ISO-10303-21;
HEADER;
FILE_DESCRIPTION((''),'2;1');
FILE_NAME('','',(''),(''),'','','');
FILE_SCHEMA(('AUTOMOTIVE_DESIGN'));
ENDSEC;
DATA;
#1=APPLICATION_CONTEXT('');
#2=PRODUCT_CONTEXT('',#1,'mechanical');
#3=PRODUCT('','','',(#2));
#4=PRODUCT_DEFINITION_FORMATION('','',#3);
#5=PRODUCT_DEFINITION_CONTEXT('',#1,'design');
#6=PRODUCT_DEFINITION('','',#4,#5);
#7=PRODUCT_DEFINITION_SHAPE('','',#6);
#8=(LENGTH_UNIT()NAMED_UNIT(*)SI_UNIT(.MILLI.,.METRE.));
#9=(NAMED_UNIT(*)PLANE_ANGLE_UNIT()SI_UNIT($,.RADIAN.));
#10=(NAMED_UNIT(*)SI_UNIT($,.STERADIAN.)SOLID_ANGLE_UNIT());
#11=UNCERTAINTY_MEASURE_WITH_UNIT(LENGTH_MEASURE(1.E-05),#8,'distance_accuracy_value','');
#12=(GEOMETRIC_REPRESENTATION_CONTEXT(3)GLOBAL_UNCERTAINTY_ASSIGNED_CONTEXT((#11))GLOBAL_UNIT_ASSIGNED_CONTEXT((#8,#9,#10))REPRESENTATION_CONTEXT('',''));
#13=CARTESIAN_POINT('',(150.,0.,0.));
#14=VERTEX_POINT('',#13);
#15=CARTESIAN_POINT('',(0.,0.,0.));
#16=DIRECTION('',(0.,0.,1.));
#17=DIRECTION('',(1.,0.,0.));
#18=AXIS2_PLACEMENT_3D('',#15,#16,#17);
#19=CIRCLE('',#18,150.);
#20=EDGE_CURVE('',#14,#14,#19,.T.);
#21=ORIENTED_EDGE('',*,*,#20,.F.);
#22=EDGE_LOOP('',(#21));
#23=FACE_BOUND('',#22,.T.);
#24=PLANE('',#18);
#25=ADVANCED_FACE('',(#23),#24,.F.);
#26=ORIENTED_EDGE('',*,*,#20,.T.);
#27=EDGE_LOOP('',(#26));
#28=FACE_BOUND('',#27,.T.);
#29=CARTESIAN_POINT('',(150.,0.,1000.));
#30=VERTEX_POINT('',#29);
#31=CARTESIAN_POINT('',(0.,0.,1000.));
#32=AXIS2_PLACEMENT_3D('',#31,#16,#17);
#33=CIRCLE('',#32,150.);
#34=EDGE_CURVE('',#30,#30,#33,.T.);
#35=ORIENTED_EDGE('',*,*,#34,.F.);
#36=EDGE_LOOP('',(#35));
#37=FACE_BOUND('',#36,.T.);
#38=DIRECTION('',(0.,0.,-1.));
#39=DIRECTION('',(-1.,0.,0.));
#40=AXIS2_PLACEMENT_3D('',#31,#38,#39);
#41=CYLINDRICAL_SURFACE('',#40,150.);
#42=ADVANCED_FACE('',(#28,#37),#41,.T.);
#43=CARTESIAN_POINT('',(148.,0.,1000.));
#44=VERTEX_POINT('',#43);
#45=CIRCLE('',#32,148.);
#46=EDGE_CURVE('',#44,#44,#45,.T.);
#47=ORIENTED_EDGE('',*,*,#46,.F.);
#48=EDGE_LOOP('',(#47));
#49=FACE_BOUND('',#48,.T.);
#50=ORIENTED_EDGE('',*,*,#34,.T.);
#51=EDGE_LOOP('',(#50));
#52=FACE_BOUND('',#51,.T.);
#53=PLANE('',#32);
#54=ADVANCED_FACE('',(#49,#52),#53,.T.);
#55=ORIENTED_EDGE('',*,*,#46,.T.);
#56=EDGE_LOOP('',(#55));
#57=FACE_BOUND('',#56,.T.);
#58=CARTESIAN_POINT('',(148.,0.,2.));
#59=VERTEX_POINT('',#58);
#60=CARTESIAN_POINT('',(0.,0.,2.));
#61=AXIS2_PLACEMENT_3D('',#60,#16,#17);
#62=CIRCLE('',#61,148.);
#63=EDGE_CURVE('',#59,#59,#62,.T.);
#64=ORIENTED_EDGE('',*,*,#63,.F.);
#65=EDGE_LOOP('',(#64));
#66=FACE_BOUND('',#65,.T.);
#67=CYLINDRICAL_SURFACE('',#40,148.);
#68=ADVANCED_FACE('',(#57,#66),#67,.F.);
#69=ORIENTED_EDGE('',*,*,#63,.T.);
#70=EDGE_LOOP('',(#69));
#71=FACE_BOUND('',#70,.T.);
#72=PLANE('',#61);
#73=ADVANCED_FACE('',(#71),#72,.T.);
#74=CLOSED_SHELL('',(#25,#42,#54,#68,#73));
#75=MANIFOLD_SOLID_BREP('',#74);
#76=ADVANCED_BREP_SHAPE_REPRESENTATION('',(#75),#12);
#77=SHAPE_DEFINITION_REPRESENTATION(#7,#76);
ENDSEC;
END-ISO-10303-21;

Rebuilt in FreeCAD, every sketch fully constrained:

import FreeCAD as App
import Part
import Sketcher
from FreeCAD import Vector
Q = App.Units.Quantity


def faces_at(feature, points):
    """Names of the faces that lie closest to the given points."""
    faces = feature.Shape.Faces
    near = lambda p: min(range(len(faces)), key=lambda i: faces[i].distToShape(Part.Vertex(*p))[0])
    return sorted({f"Face{near(p) + 1}" for p in points})

doc = App.newDocument("Part")
body = doc.addObject("PartDesign::Body", "Body")

# Sketch on XY plane
sketch1 = body.newObject("Sketcher::SketchObject", "Sketch")
sketch1.AttachmentSupport = (doc.getObject("XY_Plane"), [""])
sketch1.MapMode = "FlatFace"
sketch1.addGeometry(Part.Circle(Vector(0, 0, 0), Vector(0, 0, 1), 150), False)
sketch1.addConstraint([
    Sketcher.Constraint("Coincident", 0, 3, -1, 1),
    Sketcher.Constraint("Diameter", 0, Q("300 mm")),
])
pad1 = body.newObject("PartDesign::Pad", "Pad")
pad1.Profile = sketch1
pad1.Length = 1000
doc.recompute()

thickness = body.newObject("PartDesign::Thickness", "Thickness")
thickness.Base = (pad1, faces_at(pad1, [(0, 0, 1000)]))
thickness.Value = 2
thickness.Reversed = True
thickness.Join = "Intersection"

doc.recompute()
